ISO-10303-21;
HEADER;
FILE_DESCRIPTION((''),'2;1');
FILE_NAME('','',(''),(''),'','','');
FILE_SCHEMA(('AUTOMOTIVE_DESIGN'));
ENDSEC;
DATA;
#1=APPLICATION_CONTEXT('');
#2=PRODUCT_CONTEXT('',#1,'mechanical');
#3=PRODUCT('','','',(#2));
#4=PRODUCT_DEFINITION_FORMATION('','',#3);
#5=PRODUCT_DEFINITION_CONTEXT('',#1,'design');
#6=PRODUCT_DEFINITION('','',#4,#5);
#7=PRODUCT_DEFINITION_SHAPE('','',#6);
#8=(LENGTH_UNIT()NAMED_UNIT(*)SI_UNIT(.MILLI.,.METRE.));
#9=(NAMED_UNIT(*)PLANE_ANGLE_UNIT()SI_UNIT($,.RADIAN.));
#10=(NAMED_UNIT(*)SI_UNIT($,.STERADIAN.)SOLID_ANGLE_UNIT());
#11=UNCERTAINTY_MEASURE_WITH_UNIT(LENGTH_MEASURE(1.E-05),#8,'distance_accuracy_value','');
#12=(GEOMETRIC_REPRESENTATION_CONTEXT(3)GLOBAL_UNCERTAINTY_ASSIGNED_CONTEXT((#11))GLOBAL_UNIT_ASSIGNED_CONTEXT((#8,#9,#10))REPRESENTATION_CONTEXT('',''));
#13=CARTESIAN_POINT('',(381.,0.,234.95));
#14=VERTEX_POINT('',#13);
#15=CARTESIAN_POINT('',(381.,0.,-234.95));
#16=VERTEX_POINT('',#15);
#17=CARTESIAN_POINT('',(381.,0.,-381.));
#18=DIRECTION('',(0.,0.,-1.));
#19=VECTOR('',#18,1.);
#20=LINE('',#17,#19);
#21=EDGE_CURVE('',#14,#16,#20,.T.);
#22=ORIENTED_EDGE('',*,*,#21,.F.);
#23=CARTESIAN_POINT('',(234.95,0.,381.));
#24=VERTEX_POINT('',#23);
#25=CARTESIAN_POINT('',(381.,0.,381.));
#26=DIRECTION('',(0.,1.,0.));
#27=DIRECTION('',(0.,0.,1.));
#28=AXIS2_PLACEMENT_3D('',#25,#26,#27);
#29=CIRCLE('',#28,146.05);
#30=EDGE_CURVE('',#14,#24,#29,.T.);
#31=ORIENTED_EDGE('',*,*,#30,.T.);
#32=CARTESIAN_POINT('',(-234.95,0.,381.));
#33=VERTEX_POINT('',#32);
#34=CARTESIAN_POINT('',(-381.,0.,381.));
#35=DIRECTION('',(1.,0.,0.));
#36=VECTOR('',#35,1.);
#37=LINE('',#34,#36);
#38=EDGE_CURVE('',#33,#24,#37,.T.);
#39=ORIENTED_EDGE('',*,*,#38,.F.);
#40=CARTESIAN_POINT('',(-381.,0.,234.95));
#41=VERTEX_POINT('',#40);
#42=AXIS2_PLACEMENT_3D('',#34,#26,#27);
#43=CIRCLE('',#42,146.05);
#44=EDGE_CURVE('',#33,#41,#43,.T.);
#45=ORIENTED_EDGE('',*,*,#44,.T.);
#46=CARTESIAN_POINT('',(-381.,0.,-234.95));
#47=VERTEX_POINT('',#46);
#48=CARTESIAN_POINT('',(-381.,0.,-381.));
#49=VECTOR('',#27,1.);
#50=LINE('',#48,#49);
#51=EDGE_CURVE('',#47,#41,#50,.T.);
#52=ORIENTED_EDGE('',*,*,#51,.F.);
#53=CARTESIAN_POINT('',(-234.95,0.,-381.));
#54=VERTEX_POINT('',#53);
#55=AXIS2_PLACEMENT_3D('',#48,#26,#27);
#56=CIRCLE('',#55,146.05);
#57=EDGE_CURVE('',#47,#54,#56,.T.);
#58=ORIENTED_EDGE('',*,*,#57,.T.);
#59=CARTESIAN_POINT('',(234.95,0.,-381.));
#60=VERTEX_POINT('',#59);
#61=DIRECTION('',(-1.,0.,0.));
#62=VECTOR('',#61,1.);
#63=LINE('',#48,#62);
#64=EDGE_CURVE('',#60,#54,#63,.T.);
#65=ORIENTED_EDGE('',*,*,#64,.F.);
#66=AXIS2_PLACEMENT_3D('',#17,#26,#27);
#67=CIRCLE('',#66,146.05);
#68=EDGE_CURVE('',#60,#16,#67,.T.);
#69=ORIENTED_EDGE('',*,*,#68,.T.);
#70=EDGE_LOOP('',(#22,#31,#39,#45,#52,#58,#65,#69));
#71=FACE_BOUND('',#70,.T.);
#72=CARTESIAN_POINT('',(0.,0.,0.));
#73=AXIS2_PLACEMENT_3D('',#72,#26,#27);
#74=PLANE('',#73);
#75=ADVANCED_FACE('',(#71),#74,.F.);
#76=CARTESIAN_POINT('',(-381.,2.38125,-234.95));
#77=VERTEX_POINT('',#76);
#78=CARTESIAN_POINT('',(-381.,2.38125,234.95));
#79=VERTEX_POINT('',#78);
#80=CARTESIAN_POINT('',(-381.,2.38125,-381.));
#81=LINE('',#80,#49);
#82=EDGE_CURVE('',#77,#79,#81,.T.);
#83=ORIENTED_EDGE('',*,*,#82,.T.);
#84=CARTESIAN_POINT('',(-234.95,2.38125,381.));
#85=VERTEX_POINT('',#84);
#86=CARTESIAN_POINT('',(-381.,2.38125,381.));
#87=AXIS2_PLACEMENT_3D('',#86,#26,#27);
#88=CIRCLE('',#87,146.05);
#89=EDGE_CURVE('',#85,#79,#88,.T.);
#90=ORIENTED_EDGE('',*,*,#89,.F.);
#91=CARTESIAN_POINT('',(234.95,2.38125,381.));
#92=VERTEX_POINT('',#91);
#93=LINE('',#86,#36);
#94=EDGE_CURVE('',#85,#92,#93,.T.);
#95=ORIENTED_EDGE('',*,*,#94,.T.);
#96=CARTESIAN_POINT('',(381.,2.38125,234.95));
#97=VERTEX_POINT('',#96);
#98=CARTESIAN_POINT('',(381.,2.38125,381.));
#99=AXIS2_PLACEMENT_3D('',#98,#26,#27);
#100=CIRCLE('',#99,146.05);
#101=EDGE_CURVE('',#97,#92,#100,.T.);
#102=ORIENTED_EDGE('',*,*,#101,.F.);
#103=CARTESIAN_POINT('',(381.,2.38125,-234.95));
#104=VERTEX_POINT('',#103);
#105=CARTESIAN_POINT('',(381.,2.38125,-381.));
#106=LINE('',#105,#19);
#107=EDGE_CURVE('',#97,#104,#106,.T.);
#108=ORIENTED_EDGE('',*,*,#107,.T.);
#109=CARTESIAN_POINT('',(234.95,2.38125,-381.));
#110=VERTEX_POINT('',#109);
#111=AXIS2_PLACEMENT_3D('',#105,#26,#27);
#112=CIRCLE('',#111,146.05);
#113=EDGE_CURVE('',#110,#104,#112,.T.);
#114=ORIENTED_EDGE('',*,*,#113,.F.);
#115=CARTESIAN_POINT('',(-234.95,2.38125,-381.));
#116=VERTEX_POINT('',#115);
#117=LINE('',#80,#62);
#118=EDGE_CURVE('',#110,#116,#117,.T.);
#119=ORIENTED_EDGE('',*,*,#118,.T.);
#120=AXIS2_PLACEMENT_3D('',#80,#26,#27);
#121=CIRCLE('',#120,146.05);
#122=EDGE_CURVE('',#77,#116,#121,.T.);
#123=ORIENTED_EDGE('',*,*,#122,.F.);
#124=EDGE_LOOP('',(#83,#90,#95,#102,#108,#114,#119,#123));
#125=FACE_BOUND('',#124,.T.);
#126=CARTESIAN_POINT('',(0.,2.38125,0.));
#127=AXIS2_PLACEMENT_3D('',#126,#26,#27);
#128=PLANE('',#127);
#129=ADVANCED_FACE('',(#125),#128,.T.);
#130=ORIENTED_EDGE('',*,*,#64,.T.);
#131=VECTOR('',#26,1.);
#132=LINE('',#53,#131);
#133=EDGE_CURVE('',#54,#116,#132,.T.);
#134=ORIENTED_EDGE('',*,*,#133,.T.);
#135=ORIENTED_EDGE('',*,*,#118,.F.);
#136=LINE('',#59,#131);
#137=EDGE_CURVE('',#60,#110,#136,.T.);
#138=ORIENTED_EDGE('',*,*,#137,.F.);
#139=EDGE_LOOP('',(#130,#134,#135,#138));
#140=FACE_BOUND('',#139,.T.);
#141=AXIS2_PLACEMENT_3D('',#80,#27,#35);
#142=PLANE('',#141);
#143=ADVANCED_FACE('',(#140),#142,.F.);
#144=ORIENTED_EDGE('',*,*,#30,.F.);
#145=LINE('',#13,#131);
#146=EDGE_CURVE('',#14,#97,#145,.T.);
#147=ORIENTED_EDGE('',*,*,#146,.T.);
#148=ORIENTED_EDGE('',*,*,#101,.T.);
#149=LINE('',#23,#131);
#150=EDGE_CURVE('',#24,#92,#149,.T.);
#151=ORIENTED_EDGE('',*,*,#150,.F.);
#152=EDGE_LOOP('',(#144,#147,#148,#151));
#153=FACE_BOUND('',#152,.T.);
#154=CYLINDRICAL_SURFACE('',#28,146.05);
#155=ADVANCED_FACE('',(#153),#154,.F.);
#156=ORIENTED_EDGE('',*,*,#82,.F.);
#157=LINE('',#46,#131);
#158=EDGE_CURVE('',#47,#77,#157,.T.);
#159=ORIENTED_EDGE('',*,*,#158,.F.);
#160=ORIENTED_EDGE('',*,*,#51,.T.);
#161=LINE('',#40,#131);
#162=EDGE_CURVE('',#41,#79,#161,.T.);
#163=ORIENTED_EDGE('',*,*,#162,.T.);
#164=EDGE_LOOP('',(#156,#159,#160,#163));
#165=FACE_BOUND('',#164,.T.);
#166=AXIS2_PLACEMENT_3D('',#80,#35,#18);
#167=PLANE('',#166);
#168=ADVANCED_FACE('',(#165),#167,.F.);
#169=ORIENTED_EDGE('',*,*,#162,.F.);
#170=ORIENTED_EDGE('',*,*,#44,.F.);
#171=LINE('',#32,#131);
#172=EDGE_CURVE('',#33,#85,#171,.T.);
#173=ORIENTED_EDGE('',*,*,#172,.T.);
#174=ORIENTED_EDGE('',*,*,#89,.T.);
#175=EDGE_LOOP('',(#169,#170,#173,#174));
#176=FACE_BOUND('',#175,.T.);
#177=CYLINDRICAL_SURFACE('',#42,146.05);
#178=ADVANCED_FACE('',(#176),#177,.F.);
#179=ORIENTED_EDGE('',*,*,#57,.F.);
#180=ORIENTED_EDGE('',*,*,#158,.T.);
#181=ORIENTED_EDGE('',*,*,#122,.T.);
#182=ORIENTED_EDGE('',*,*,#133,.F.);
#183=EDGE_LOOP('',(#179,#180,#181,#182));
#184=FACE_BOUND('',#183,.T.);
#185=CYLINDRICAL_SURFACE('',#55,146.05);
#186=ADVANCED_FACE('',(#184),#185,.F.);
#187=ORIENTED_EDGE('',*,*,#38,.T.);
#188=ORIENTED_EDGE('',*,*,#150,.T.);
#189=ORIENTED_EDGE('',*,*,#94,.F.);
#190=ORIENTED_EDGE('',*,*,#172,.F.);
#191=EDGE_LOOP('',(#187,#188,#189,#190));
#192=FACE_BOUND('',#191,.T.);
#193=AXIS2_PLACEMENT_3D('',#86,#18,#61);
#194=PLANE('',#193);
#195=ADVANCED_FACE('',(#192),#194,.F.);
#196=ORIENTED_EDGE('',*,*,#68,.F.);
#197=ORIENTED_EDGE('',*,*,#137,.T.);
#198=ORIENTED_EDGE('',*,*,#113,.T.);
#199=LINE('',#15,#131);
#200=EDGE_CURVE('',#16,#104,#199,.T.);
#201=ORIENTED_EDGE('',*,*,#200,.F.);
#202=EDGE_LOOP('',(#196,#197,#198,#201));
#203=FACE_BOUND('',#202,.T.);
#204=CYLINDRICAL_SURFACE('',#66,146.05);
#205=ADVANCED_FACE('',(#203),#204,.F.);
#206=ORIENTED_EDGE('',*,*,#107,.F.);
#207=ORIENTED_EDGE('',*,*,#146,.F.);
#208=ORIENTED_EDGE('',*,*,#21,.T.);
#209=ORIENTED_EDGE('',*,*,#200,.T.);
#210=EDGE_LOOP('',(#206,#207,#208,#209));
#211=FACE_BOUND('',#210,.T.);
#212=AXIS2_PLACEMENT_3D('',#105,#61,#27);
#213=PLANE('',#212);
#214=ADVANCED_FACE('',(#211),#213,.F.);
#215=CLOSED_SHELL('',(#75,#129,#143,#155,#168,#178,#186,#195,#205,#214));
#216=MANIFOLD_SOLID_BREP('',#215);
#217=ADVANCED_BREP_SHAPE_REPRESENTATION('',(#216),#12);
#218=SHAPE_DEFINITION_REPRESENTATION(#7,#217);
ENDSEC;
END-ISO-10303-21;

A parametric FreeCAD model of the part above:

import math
import FreeCAD as App
import Part
import Sketcher
from FreeCAD import Vector
Q = App.Units.Quantity


def add_polygon(sketch, points):
    """Adds a closed chain of lines whose ends are joined by coincident constraints."""
    first, n = sketch.GeometryCount, len(points)
    for a, b in zip(points, points[1:] + points[:1]):
        sketch.addGeometry(Part.LineSegment(App.Vector(*a, 0), App.Vector(*b, 0)), False)
    for i in range(n):
        sketch.addConstraint(Sketcher.Constraint("Coincident", first + i, 2, first + (i + 1) % n, 1))

doc = App.newDocument("Part")
body = doc.addObject("PartDesign::Body", "Body")

# Sketch on XZ plane
sketch1 = body.newObject("Sketcher::SketchObject", "Sketch")
sketch1.AttachmentSupport = (doc.getObject("XZ_Plane"), [""])
sketch1.MapMode = "FlatFace"
add_polygon(sketch1, [(-381, -381), (-381, 381), (381, 381), (381, -381)])  # lines 0-3
sketch1.addConstraint([
    Sketcher.Constraint("Vertical", 0),
    Sketcher.Constraint("Horizontal", 1),
    Sketcher.Constraint("Vertical", 2),
    Sketcher.Constraint("Horizontal", 3),
    Sketcher.Constraint("Symmetric", 0, 2, 2, 2, -1, 1),
    Sketcher.Constraint("Equal", 3, 0),
    Sketcher.Constraint("DistanceX", 1, 1, 1, 2, Q("30 in")),
])
pad1 = body.newObject("PartDesign::Pad", "Pad")
pad1.Profile = sketch1
pad1.Length = Q("0.09375 in")
pad1.Reversed = True

# Sketch on XZ plane
sketch2 = body.newObject("Sketcher::SketchObject", "Sketch001")
sketch2.AttachmentSupport = (doc.getObject("XZ_Plane"), [""])
sketch2.MapMode = "FlatFace"
sketch2.AttachmentOffset = App.Placement(Vector(0, 0, -0.09375 * 25.4), App.Rotation())
sketch2.addGeometry([
    Part.LineSegment(Vector(381, -381, 0), Vector(235, -381, 0)),  # 0
    Part.ArcOfCircle(Part.Circle(Vector(381, -381, 0), Vector(0, 0, 1), 146), math.radians(90), math.radians(180)),  # 1
    Part.LineSegment(Vector(381, -235, 0), Vector(381, -381, 0)),  # 2
    Part.LineSegment(Vector(381, 381, 0), Vector(381, 235, 0)),  # 3
    Part.ArcOfCircle(Part.Circle(Vector(381, 381, 0), Vector(0, 0, 1), 146), math.radians(-180), math.radians(-90)),  # 4
    Part.LineSegment(Vector(235, 381, 0), Vector(381, 381, 0)),  # 5
    Part.LineSegment(Vector(-381, 381, 0), Vector(-235, 381, 0)),  # 6
    Part.ArcOfCircle(Part.Circle(Vector(-381, 381, 0), Vector(0, 0, 1), 146), math.radians(-90), math.radians(0)),  # 7
    Part.LineSegment(Vector(-381, 235, 0), Vector(-381, 381, 0)),  # 8
    Part.LineSegment(Vector(-381, -381, 0), Vector(-381, -235, 0)),  # 9
    Part.ArcOfCircle(Part.Circle(Vector(-381, -381, 0), Vector(0, 0, 1), 146), math.radians(0), math.radians(90)),  # 10
    Part.LineSegment(Vector(-235, -381, 0), Vector(-381, -381, 0)),  # 11
], False)
sketch2.addConstraint([
    Sketcher.Constraint("Coincident", 0, 2, 1, 2),
    Sketcher.Constraint("Coincident", 1, 1, 2, 1),
    Sketcher.Constraint("Coincident", 2, 2, 0, 1),
    Sketcher.Constraint("Coincident", 3, 2, 4, 2),
    Sketcher.Constraint("Coincident", 4, 1, 5, 1),
    Sketcher.Constraint("Coincident", 5, 2, 3, 1),
    Sketcher.Constraint("Coincident", 6, 2, 7, 2),
    Sketcher.Constraint("Coincident", 7, 1, 8, 1),
    Sketcher.Constraint("Coincident", 8, 2, 6, 1),
    Sketcher.Constraint("Coincident", 9, 2, 10, 2),
    Sketcher.Constraint("Coincident", 10, 1, 11, 1),
    Sketcher.Constraint("Coincident", 11, 2, 9, 1),
    Sketcher.Constraint("Horizontal", 0),
    Sketcher.Constraint("Vertical", 2),
    Sketcher.Constraint("Vertical", 3),
    Sketcher.Constraint("Horizontal", 5),
    Sketcher.Constraint("Horizontal", 6),
    Sketcher.Constraint("Vertical", 8),
    Sketcher.Constraint("Vertical", 9),
    Sketcher.Constraint("Horizontal", 11),
    Sketcher.Constraint("Coincident", 2, 2, 1, 3),
    Sketcher.Constraint("Coincident", 5, 2, 4, 3),
    Sketcher.Constraint("Coincident", 8, 2, 7, 3),
    Sketcher.Constraint("Coincident", 11, 2, 10, 3),
    Sketcher.Constraint("Equal", 1, 4),
    Sketcher.Constraint("Equal", 4, 7),
    Sketcher.Constraint("Equal", 7, 10),
    Sketcher.Constraint("Symmetric", 1, 3, 7, 3, -1, 1),
    Sketcher.Constraint("Symmetric", 4, 3, 10, 3, -1, 1),
    Sketcher.Constraint("Symmetric", 4, 3, 7, 3, -2),
    Sketcher.Constraint("Radius", 1, Q("5.75 in")),
    Sketcher.Constraint("DistanceX", -1, 1, 1, 3, Q("15 in")),
    Sketcher.Constraint("DistanceY", 1, 3, -1, 1, Q("15 in")),
])
pocket1 = body.newObject("PartDesign::Pocket", "Pocket")
pocket1.Profile = sketch2
pocket1.Type = "ThroughAll"
pocket1.Reversed = True

doc.recompute()
